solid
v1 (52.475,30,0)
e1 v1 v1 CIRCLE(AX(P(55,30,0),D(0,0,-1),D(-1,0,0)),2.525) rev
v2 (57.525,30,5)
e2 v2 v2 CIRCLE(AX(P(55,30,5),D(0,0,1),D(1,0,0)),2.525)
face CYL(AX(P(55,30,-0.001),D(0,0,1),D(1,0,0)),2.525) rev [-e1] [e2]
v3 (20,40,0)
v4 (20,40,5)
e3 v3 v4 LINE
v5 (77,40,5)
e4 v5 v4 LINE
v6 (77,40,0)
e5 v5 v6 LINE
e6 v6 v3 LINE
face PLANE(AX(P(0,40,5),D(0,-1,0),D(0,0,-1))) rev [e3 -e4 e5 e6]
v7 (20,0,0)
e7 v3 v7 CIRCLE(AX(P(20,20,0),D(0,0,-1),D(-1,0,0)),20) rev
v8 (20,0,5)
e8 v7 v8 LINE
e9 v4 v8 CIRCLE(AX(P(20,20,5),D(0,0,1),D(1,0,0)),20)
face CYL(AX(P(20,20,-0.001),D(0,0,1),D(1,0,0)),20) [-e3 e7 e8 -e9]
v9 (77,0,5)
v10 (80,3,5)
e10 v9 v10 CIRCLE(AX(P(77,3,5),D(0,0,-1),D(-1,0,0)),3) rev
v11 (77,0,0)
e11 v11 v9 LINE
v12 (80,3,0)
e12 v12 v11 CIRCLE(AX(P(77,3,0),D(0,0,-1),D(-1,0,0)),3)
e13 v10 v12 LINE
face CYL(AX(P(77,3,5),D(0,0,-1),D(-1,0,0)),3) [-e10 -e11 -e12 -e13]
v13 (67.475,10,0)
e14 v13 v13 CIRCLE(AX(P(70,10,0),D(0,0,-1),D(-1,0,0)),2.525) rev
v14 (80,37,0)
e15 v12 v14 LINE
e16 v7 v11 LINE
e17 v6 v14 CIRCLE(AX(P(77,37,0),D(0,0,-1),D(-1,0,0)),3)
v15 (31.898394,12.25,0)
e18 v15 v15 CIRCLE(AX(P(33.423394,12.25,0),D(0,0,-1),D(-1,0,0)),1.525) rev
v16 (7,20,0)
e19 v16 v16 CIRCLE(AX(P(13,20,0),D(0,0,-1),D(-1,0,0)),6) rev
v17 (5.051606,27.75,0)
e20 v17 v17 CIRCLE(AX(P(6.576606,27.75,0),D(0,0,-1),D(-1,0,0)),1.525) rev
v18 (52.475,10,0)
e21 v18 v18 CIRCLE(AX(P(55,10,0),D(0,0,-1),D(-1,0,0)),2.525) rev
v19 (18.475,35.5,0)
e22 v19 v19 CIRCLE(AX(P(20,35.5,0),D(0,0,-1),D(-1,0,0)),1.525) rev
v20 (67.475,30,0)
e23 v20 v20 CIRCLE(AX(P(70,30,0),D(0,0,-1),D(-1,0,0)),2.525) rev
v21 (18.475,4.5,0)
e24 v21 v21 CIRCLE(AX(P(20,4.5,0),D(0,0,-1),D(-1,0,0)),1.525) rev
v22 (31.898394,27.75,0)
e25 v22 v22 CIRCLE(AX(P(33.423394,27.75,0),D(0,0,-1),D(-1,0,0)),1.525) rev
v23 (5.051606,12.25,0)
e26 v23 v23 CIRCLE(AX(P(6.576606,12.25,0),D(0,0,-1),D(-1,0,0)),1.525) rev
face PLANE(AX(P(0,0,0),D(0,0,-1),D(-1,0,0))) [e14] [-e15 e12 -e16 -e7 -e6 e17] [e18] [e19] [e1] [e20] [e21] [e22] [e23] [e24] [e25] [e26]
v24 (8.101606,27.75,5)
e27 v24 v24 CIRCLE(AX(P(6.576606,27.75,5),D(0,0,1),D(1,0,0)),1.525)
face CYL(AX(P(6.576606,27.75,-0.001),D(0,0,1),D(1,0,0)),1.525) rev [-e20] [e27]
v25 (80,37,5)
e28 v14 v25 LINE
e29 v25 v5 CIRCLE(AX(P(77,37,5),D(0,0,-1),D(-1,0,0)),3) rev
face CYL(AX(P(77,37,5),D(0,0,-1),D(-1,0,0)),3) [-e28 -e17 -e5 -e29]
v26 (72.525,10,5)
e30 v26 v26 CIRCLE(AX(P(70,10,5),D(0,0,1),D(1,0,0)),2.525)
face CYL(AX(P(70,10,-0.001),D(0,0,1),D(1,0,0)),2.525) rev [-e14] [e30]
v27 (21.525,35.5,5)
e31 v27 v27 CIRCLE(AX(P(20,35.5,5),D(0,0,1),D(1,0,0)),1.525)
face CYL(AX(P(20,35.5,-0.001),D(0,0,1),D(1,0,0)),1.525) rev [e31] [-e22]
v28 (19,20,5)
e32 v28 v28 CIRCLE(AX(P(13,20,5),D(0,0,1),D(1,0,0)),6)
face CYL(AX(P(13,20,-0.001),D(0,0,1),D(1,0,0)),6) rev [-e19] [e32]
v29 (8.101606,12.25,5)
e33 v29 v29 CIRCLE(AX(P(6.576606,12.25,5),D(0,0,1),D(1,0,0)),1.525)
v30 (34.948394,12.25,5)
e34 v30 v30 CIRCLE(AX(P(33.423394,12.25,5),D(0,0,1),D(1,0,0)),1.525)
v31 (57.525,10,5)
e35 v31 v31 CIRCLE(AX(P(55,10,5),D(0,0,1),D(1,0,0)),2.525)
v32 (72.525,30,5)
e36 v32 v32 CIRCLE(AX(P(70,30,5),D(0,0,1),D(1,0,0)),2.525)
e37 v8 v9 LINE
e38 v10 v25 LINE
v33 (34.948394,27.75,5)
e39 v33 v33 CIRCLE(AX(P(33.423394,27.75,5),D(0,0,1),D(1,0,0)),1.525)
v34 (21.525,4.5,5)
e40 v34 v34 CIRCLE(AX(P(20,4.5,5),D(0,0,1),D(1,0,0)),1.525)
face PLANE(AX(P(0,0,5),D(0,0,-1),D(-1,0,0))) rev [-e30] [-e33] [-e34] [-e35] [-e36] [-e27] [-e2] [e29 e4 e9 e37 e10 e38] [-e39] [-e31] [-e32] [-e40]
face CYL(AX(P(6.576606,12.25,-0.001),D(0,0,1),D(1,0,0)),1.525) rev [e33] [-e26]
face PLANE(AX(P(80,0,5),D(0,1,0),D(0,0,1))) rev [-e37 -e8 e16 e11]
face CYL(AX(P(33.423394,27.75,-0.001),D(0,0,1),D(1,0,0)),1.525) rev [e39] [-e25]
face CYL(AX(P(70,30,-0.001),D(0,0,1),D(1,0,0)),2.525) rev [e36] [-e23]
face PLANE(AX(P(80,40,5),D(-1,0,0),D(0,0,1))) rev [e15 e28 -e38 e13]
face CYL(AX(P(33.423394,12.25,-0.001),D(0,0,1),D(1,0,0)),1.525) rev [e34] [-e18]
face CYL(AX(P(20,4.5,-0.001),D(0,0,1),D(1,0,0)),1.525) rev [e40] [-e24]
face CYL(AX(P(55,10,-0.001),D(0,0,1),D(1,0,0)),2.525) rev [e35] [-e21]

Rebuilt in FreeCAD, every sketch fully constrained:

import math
import FreeCAD as App
import Part
import Sketcher


def edges_at(feature, points):
    """Names of the edges that pass closest to the given points."""
    edges = feature.Shape.Edges
    near = lambda p: min(range(len(edges)), key=lambda i: edges[i].distToShape(Part.Vertex(*p))[0])
    return sorted({f"Edge{near(p) + 1}" for p in points})

doc = App.newDocument("Part")
body = doc.addObject("PartDesign::Body", "Body")

# Sketch on XY plane
sketch1 = body.newObject("Sketcher::SketchObject", "Sketch")
sketch1.AttachmentSupport = (doc.getObject("XY_Plane"), [""])
sketch1.MapMode = "FlatFace"
sketch1.addGeometry([
    Part.LineSegment(App.Vector(0, 40, 0), App.Vector(0, 0, 0)),
    Part.LineSegment(App.Vector(0, 0, 0), App.Vector(80, 0, 0)),
    Part.LineSegment(App.Vector(80, 0, 0), App.Vector(80, 40, 0)),
    Part.LineSegment(App.Vector(80, 40, 0), App.Vector(0, 40, 0)),
], False)
sketch1.addConstraint([
    Sketcher.Constraint("Coincident", 0, 2, 1, 1),
    Sketcher.Constraint("Coincident", 1, 2, 2, 1),
    Sketcher.Constraint("Coincident", 2, 2, 3, 1),
    Sketcher.Constraint("Coincident", 3, 2, 0, 1),
    Sketcher.Constraint("Vertical", 0),
    Sketcher.Constraint("Horizontal", 1),
    Sketcher.Constraint("Vertical", 2),
    Sketcher.Constraint("Horizontal", 3),
    Sketcher.Constraint("Coincident", 0, 2, -1, 1),
    Sketcher.Constraint("DistanceX", 1, 1, 1, 2, 80.0),
    Sketcher.Constraint("DistanceY", 0, 2, 0, 1, 40.0),
])
pad1 = body.newObject("PartDesign::Pad", "Pad")
pad1.Profile = sketch1
pad1.Length = 5

# Sketch on XY plane
sketch2 = body.newObject("Sketcher::SketchObject", "Sketch001")
sketch2.AttachmentSupport = (doc.getObject("XY_Plane"), [""])
sketch2.MapMode = "FlatFace"
sketch2.AttachmentOffset = App.Placement(App.Vector(0, 0, 5), App.Rotation())
sketch2.addGeometry([
    Part.ArcOfCircle(Part.Circle(App.Vector(20, 20, 0), App.Vector(0, 0, 1), 20), math.radians(180), math.radians(270)),
    Part.LineSegment(App.Vector(0, 20, 0), App.Vector(0, 0, 0)),
    Part.LineSegment(App.Vector(0, 0, 0), App.Vector(20, 0, 0)),
], False)
sketch2.addConstraint([
    Sketcher.Constraint("Tangent", 0, 1, 1, 1),
    Sketcher.Constraint("Coincident", 1, 2, 2, 1),
    Sketcher.Constraint("Tangent", 2, 2, 0, 2),
    Sketcher.Constraint("Vertical", 1),
    Sketcher.Constraint("Horizontal", 2),
    Sketcher.Constraint("Coincident", 1, 2, -1, 1),
    Sketcher.Constraint("Radius", 0, 20.0),
])
pocket1 = body.newObject("PartDesign::Pocket", "Pocket")
pocket1.Profile = sketch2
pocket1.Type = "UpToFirst"

# Sketch on XY plane
sketch3 = body.newObject("Sketcher::SketchObject", "Sketch002")
sketch3.AttachmentSupport = (doc.getObject("XY_Plane"), [""])
sketch3.MapMode = "FlatFace"
sketch3.AttachmentOffset = App.Placement(App.Vector(0, 0, 5), App.Rotation())
sketch3.addGeometry([
    Part.LineSegment(App.Vector(20, 40, 0), App.Vector(0, 40, 0)),
    Part.LineSegment(App.Vector(0, 40, 0), App.Vector(0, 20, 0)),
    Part.ArcOfCircle(Part.Circle(App.Vector(20, 20, 0), App.Vector(0, 0, 1), 20), math.radians(90), math.radians(180)),
], False)
sketch3.addConstraint([
    Sketcher.Constraint("Coincident", 0, 2, 1, 1),
    Sketcher.Constraint("Tangent", 1, 2, 2, 2),
    Sketcher.Constraint("Tangent", 2, 1, 0, 1),
    Sketcher.Constraint("Horizontal", 0),
    Sketcher.Constraint("Vertical", 1),
    Sketcher.Constraint("PointOnObject", 0, 2, -2),
    Sketcher.Constraint("Radius", 2, 20.0),
    Sketcher.Constraint("DistanceY", -1, 1, 2, 3, 20.0),
])
pocket2 = body.newObject("PartDesign::Pocket", "Pocket001")
pocket2.Profile = sketch3
pocket2.Type = "UpToFirst"

# Sketch on XY plane
sketch4 = body.newObject("Sketcher::SketchObject", "Sketch003")
sketch4.AttachmentSupport = (doc.getObject("XY_Plane"), [""])
sketch4.MapMode = "FlatFace"
sketch4.AttachmentOffset = App.Placement(App.Vector(0, 0, 5), App.Rotation())
sketch4.addGeometry(Part.Circle(App.Vector(55, 30, 0), App.Vector(0, 0, 1), 2.525), False)
sketch4.addConstraint([
    Sketcher.Constraint("Diameter", 0, 5.05),
    Sketcher.Constraint("DistanceX", -1, 1, 0, 3, 55.0),
    Sketcher.Constraint("DistanceY", -1, 1, 0, 3, 30.0),
])
pocket3 = body.newObject("PartDesign::Pocket", "Pocket002")
pocket3.Profile = sketch4
pocket3.Type = "UpToFirst"

# Sketch on XY plane
sketch5 = body.newObject("Sketcher::SketchObject", "Sketch004")
sketch5.AttachmentSupport = (doc.getObject("XY_Plane"), [""])
sketch5.MapMode = "FlatFace"
sketch5.AttachmentOffset = App.Placement(App.Vector(0, 0, 5), App.Rotation())
sketch5.addGeometry(Part.Circle(App.Vector(70, 30, 0), App.Vector(0, 0, 1), 2.525), False)
sketch5.addConstraint([
    Sketcher.Constraint("Diameter", 0, 5.05),
    Sketcher.Constraint("DistanceX", -1, 1, 0, 3, 70.0),
    Sketcher.Constraint("DistanceY", -1, 1, 0, 3, 30.0),
])
pocket4 = body.newObject("PartDesign::Pocket", "Pocket003")
pocket4.Profile = sketch5
pocket4.Type = "UpToFirst"

# Sketch on XY plane
sketch6 = body.newObject("Sketcher::SketchObject", "Sketch005")
sketch6.AttachmentSupport = (doc.getObject("XY_Plane"), [""])
sketch6.MapMode = "FlatFace"
sketch6.AttachmentOffset = App.Placement(App.Vector(0, 0, 5), App.Rotation())
sketch6.addGeometry(Part.Circle(App.Vector(55, 10, 0), App.Vector(0, 0, 1), 2.525), False)
sketch6.addConstraint([
    Sketcher.Constraint("Diameter", 0, 5.05),
    Sketcher.Constraint("DistanceX", -1, 1, 0, 3, 55.0),
    Sketcher.Constraint("DistanceY", -1, 1, 0, 3, 10.0),
])
pocket5 = body.newObject("PartDesign::Pocket", "Pocket004")
pocket5.Profile = sketch6
pocket5.Type = "UpToFirst"

# Sketch on XY plane
sketch7 = body.newObject("Sketcher::SketchObject", "Sketch006")
sketch7.AttachmentSupport = (doc.getObject("XY_Plane"), [""])
sketch7.MapMode = "FlatFace"
sketch7.AttachmentOffset = App.Placement(App.Vector(0, 0, 5), App.Rotation())
sketch7.addGeometry(Part.Circle(App.Vector(70, 10, 0), App.Vector(0, 0, 1), 2.525), False)
sketch7.addConstraint([
    Sketcher.Constraint("Diameter", 0, 5.05),
    Sketcher.Constraint("DistanceX", -1, 1, 0, 3, 70.0),
    Sketcher.Constraint("DistanceY", -1, 1, 0, 3, 10.0),
])
pocket6 = body.newObject("PartDesign::Pocket", "Pocket005")
pocket6.Profile = sketch7
pocket6.Type = "UpToFirst"
doc.recompute()

fillet = body.newObject("PartDesign::Fillet", "Fillet")
fillet.Base = (pocket6, edges_at(pocket6, [(80, 40, 2.5), (80, 0, 2.5)]))
fillet.Radius = 3

# Sketch on XY plane
sketch8 = body.newObject("Sketcher::SketchObject", "Sketch007")
sketch8.AttachmentSupport = (doc.getObject("XY_Plane"), [""])
sketch8.MapMode = "FlatFace"
sketch8.AttachmentOffset = App.Placement(App.Vector(0, 0, 5), App.Rotation())
sketch8.addGeometry(Part.Circle(App.Vector(20, 35.5, 0), App.Vector(0, 0, 1), 1.525), False)
sketch8.addConstraint([
    Sketcher.Constraint("Diameter", 0, 3.05),
    Sketcher.Constraint("DistanceX", -1, 1, 0, 3, 20.0),
    Sketcher.Constraint("DistanceY", -1, 1, 0, 3, 35.5),
])
pocket7 = body.newObject("PartDesign::Pocket", "Pocket006")
pocket7.Profile = sketch8
pocket7.Type = "UpToFirst"

# Sketch on XY plane
sketch9 = body.newObject("Sketcher::SketchObject", "Sketch008")
sketch9.AttachmentSupport = (doc.getObject("XY_Plane"), [""])
sketch9.MapMode = "FlatFace"
sketch9.AttachmentOffset = App.Placement(App.Vector(0, 0, 5), App.Rotation())
sketch9.addGeometry(Part.Circle(App.Vector(33.423394, 27.75, 0), App.Vector(0, 0, 1), 1.525), False)
sketch9.addConstraint([
    Sketcher.Constraint("Diameter", 0, 3.05),
    Sketcher.Constraint("DistanceY", -1, 1, 0, 3, 27.75),
    Sketcher.Constraint("DistanceX", -1, 1, 0, 3, 33.423394),
])
pocket8 = body.newObject("PartDesign::Pocket", "Pocket007")
pocket8.Profile = sketch9
pocket8.Type = "UpToFirst"

# Sketch on XY plane
sketch10 = body.newObject("Sketcher::SketchObject", "Sketch009")
sketch10.AttachmentSupport = (doc.getObject("XY_Plane"), [""])
sketch10.MapMode = "FlatFace"
sketch10.AttachmentOffset = App.Placement(App.Vector(0, 0, 5), App.Rotation())
sketch10.addGeometry(Part.Circle(App.Vector(33.423394, 12.25, 0), App.Vector(0, 0, 1), 1.525), False)
sketch10.addConstraint([
    Sketcher.Constraint("Diameter", 0, 3.05),
    Sketcher.Constraint("DistanceY", -1, 1, 0, 3, 12.25),
    Sketcher.Constraint("DistanceX", -1, 1, 0, 3, 33.423394),
])
pocket9 = body.newObject("PartDesign::Pocket", "Pocket008")
pocket9.Profile = sketch10
pocket9.Type = "UpToFirst"

# Sketch on XY plane
sketch11 = body.newObject("Sketcher::SketchObject", "Sketch010")
sketch11.AttachmentSupport = (doc.getObject("XY_Plane"), [""])
sketch11.MapMode = "FlatFace"
sketch11.AttachmentOffset = App.Placement(App.Vector(0, 0, 5), App.Rotation())
sketch11.addGeometry(Part.Circle(App.Vector(20, 4.5, 0), App.Vector(0, 0, 1), 1.525), False)
sketch11.addConstraint([
    Sketcher.Constraint("Diameter", 0, 3.05),
    Sketcher.Constraint("DistanceX", -1, 1, 0, 3, 20.0),
    Sketcher.Constraint("DistanceY", -1, 1, 0, 3, 4.5),
])
pocket10 = body.newObject("PartDesign::Pocket", "Pocket009")
pocket10.Profile = sketch11
pocket10.Type = "UpToFirst"

# Sketch on XY plane
sketch12 = body.newObject("Sketcher::SketchObject", "Sketch011")
sketch12.AttachmentSupport = (doc.getObject("XY_Plane"), [""])
sketch12.MapMode = "FlatFace"
sketch12.AttachmentOffset = App.Placement(App.Vector(0, 0, 5), App.Rotation())
sketch12.addGeometry(Part.Circle(App.Vector(6.576606, 12.25, 0), App.Vector(0, 0, 1), 1.525), False)
sketch12.addConstraint([
    Sketcher.Constraint("Diameter", 0, 3.05),
    Sketcher.Constraint("DistanceY", -1, 1, 0, 3, 12.25),
    Sketcher.Constraint("DistanceX", -1, 1, 0, 3, 6.576606),
])
pocket11 = body.newObject("PartDesign::Pocket", "Pocket010")
pocket11.Profile = sketch12
pocket11.Type = "UpToFirst"

# Sketch on XY plane
sketch13 = body.newObject("Sketcher::SketchObject", "Sketch012")
sketch13.AttachmentSupport = (doc.getObject("XY_Plane"), [""])
sketch13.MapMode = "FlatFace"
sketch13.AttachmentOffset = App.Placement(App.Vector(0, 0, 5), App.Rotation())
sketch13.addGeometry(Part.Circle(App.Vector(6.576606, 27.75, 0), App.Vector(0, 0, 1), 1.525), False)
sketch13.addConstraint([
    Sketcher.Constraint("Diameter", 0, 3.05),
    Sketcher.Constraint("DistanceY", -1, 1, 0, 3, 27.75),
    Sketcher.Constraint("DistanceX", -1, 1, 0, 3, 6.576606),
])
pocket12 = body.newObject("PartDesign::Pocket", "Pocket011")
pocket12.Profile = sketch13
pocket12.Type = "UpToFirst"

# Sketch on XY plane
sketch14 = body.newObject("Sketcher::SketchObject", "Sketch013")
sketch14.AttachmentSupport = (doc.getObject("XY_Plane"), [""])
sketch14.MapMode = "FlatFace"
sketch14.AttachmentOffset = App.Placement(App.Vector(0, 0, 5), App.Rotation())
sketch14.addGeometry(Part.Circle(App.Vector(13, 20, 0), App.Vector(0, 0, 1), 6), False)
sketch14.addConstraint([
    Sketcher.Constraint("Diameter", 0, 12.0),
    Sketcher.Constraint("DistanceX", -1, 1, 0, 3, 13.0),
    Sketcher.Constraint("DistanceY", -1, 1, 0, 3, 20.0),
])
pocket13 = body.newObject("PartDesign::Pocket", "Pocket012")
pocket13.Profile = sketch14
pocket13.Type = "UpToFirst"

doc.recompute()
